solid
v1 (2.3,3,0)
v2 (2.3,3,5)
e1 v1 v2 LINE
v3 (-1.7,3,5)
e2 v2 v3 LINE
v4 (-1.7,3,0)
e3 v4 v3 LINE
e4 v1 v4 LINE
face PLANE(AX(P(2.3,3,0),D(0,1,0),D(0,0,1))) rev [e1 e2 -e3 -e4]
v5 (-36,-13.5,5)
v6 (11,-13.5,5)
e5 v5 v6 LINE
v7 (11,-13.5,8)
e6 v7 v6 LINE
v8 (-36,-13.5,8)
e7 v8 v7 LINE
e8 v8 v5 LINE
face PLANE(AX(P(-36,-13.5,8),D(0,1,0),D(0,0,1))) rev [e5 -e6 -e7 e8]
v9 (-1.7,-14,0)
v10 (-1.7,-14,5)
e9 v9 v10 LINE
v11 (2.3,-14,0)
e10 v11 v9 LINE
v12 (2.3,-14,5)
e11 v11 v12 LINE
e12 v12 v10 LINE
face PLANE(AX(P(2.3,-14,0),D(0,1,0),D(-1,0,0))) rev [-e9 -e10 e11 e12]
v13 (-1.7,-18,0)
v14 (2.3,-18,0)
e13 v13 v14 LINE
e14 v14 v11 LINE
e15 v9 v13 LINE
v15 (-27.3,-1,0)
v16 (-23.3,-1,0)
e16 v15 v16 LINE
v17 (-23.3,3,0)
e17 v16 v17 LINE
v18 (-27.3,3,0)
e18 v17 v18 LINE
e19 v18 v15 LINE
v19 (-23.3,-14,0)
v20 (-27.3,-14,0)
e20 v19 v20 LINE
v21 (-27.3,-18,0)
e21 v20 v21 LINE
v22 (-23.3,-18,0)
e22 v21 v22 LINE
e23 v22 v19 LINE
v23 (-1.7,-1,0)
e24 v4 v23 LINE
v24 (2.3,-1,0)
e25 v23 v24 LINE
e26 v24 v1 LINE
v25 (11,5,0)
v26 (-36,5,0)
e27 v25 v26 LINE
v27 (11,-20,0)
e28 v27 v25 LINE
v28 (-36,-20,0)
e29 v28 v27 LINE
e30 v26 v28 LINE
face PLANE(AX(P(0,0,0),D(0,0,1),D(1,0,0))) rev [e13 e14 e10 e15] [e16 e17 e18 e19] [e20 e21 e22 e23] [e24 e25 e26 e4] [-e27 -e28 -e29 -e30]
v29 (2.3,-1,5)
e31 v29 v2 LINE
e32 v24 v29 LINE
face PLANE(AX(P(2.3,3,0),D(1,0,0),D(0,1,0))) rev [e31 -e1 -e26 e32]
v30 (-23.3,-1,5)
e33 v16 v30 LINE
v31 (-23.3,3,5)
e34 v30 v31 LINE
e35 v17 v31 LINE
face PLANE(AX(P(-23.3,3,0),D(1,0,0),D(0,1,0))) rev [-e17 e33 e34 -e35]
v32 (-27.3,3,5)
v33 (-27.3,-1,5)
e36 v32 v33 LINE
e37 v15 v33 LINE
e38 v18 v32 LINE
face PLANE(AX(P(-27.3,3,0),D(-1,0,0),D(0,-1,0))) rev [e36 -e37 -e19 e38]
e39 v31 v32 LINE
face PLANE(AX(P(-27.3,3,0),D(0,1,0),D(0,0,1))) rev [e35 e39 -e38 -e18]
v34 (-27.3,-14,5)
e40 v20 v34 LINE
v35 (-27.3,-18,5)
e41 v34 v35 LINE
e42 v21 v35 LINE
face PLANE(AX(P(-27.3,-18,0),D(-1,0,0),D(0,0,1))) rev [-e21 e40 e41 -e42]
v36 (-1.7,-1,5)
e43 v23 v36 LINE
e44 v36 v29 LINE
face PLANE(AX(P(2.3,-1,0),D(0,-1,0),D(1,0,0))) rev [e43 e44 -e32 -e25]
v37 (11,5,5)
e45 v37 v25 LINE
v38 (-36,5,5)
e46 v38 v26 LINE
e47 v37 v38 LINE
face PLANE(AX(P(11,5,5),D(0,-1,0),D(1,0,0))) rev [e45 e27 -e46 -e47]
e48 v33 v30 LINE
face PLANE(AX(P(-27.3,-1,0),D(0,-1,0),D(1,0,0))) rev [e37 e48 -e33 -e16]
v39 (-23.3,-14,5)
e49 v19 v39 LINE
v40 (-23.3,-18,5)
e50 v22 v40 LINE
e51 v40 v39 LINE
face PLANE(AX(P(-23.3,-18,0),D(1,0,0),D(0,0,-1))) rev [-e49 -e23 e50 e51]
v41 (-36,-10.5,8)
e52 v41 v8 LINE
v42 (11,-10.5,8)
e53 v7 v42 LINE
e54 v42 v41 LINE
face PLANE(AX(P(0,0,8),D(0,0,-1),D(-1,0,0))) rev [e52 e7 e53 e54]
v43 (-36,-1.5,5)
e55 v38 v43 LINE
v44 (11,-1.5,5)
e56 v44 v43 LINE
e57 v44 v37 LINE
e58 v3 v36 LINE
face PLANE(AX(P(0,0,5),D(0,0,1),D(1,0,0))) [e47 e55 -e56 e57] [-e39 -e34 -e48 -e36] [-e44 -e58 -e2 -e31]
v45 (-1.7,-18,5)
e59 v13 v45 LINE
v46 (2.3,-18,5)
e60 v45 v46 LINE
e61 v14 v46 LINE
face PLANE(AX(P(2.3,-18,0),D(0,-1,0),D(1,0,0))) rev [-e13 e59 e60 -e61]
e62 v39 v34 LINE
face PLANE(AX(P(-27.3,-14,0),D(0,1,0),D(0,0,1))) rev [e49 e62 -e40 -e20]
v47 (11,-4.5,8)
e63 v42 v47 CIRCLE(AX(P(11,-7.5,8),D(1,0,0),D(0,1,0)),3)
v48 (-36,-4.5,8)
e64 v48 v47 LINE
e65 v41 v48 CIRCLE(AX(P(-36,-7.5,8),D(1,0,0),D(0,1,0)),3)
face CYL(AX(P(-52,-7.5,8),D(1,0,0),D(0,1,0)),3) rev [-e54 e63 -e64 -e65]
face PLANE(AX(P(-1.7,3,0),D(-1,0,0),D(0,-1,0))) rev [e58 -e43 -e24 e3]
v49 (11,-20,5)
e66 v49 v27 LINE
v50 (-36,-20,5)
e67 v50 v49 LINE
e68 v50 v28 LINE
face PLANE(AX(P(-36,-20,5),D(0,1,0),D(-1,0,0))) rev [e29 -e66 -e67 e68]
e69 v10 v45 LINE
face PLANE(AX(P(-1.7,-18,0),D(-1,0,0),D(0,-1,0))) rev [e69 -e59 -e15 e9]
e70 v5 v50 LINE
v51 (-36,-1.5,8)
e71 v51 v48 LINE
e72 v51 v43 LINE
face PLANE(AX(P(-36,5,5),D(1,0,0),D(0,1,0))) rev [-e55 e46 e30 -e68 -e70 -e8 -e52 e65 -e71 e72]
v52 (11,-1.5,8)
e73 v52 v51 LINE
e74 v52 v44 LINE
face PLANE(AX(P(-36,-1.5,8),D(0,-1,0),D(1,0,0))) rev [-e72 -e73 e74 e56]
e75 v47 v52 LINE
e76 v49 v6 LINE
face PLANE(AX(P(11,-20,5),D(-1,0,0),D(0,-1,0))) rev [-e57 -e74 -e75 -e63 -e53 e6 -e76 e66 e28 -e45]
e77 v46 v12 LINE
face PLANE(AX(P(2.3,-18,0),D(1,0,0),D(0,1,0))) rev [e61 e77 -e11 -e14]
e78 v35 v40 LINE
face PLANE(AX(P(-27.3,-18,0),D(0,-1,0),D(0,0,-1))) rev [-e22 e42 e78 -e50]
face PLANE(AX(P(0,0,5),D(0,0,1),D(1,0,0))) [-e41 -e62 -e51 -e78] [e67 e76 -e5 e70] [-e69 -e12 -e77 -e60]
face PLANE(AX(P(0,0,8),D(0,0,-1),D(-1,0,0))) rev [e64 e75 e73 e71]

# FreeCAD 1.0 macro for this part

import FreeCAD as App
import Part
import Sketcher
from FreeCAD import Vector


def add_polygon(sketch, points):
    """Adds a closed chain of lines whose ends are joined by coincident constraints."""
    first, n = sketch.GeometryCount, len(points)
    for a, b in zip(points, points[1:] + points[:1]):
        sketch.addGeometry(Part.LineSegment(App.Vector(*a, 0), App.Vector(*b, 0)), False)
    for i in range(n):
        sketch.addConstraint(Sketcher.Constraint("Coincident", first + i, 2, first + (i + 1) % n, 1))

doc = App.newDocument("Part")
params = doc.addObject("Spreadsheet::Sheet", "Params")
for row, (alias, value) in enumerate([
    ("sketch1_width", "47 mm"),
    ("sketch1_height", "25 mm"),
    ("pad1_length", "5 mm"),
    ("sketch2_width", "4 mm"),
    ("pocket1_length", "5 mm"),
    ("sketch3_width", "47 mm"),
    ("sketch3_height", "12 mm"),
    ("pad2_length", "3 mm"),
    ("sketch4_diameter", "6 mm"),
    ("pocket2_length", "63 mm"),
], start=1):
    params.set(f"A{row}", alias)
    params.set(f"B{row}", "=" + value)
    params.setAlias(f"B{row}", alias)

body = doc.addObject("PartDesign::Body", "Body")

sketch1 = body.newObject("Sketcher::SketchObject", "Sketch")
sketch1.AttachmentSupport = (doc.getObject("XY_Plane"), [""])
sketch1.MapMode = "FlatFace"
add_polygon(sketch1, [(-36, 5), (-36, -20), (11, -20), (11, 5)])
sketch1.addConstraint(Sketcher.Constraint("Vertical", 0))
sketch1.addConstraint(Sketcher.Constraint("Horizontal", 1))
sketch1.addConstraint(Sketcher.Constraint("Vertical", 2))
sketch1.addConstraint(Sketcher.Constraint("Horizontal", 3))
sketch1.addConstraint(Sketcher.Constraint("DistanceX", 1, 1, 1, 2, 47.0))
sketch1.addConstraint(Sketcher.Constraint("DistanceY", 0, 2, 0, 1, 25.0))
sketch1.addConstraint(Sketcher.Constraint("DistanceX", 0, 2, -1, 1, 36.0))
sketch1.addConstraint(Sketcher.Constraint("DistanceY", 0, 2, -1, 1, 20.0))
sketch1.setExpression("Constraints[8]", "Params.sketch1_width")
sketch1.setExpression("Constraints[9]", "Params.sketch1_height")
pad1 = body.newObject("PartDesign::Pad", "Pad")
pad1.Profile = sketch1
pad1.setExpression("Length", "Params.pad1_length")

sketch2 = body.newObject("Sketcher::SketchObject", "Sketch001")
sketch2.AttachmentSupport = (doc.getObject("XY_Plane"), [""])
sketch2.MapMode = "FlatFace"
sketch2.AttachmentOffset = App.Placement(Vector(0, 0, 5), App.Rotation())
add_polygon(sketch2, [(-27.3, -14), (-27.3, -18), (-23.3, -18), (-23.3, -14)])
add_polygon(sketch2, [(-27.3, 3), (-27.3, -1), (-23.3, -1), (-23.3, 3)])
add_polygon(sketch2, [(-1.7, 3), (-1.7, -1), (2.3, -1), (2.3, 3)])
add_polygon(sketch2, [(-1.7, -14), (-1.7, -18), (2.3, -18), (2.3, -14)])
sketch2.addConstraint(Sketcher.Constraint("Vertical", 0))
sketch2.addConstraint(Sketcher.Constraint("Horizontal", 1))
sketch2.addConstraint(Sketcher.Constraint("Vertical", 2))
sketch2.addConstraint(Sketcher.Constraint("Horizontal", 3))
sketch2.addConstraint(Sketcher.Constraint("Vertical", 4))
sketch2.addConstraint(Sketcher.Constraint("Horizontal", 5))
sketch2.addConstraint(Sketcher.Constraint("Vertical", 6))
sketch2.addConstraint(Sketcher.Constraint("Horizontal", 7))
sketch2.addConstraint(Sketcher.Constraint("Vertical", 8))
sketch2.addConstraint(Sketcher.Constraint("Horizontal", 9))
sketch2.addConstraint(Sketcher.Constraint("Vertical", 10))
sketch2.addConstraint(Sketcher.Constraint("Horizontal", 11))
sketch2.addConstraint(Sketcher.Constraint("Vertical", 12))
sketch2.addConstraint(Sketcher.Constraint("Horizontal", 13))
sketch2.addConstraint(Sketcher.Constraint("Vertical", 14))
sketch2.addConstraint(Sketcher.Constraint("Horizontal", 15))
sketch2.addConstraint(Sketcher.Constraint("Horizontal", 5, 2, 8, 2))
sketch2.addConstraint(Sketcher.Constraint("Horizontal", 7, 2, 10, 2))
sketch2.addConstraint(Sketcher.Constraint("Horizontal", 1, 2, 12, 2))
sketch2.addConstraint(Sketcher.Constraint("Horizontal", 3, 2, 14, 2))
sketch2.addConstraint(Sketcher.Constraint("Vertical", 3, 2, 4, 2))
sketch2.addConstraint(Sketcher.Constraint("Vertical", 2, 2, 5, 2))
sketch2.addConstraint(Sketcher.Constraint("Vertical", 11, 2, 12, 2))
sketch2.addConstraint(Sketcher.Constraint("Vertical", 10, 2, 13, 2))
sketch2.addConstraint(Sketcher.Constraint("Equal", 7, 9))
sketch2.addConstraint(Sketcher.Constraint("Equal", 15, 0))
sketch2.addConstraint(Sketcher.Constraint("Equal", 2, 4))
sketch2.addConstraint(Sketcher.Constraint("DistanceX", 1, 1, 1, 2, 4.0))
sketch2.addConstraint(Sketcher.Constraint("DistanceY", 0, 2, -1, 1, 18.0))
sketch2.addConstraint(Sketcher.Constraint("DistanceY", 4, 2, -1, 1, 1.0))
sketch2.addConstraint(Sketcher.Constraint("DistanceX", 0, 2, -1, 1, 27.3))
sketch2.addConstraint(Sketcher.Constraint("DistanceX", 8, 2, -1, 1, 1.7))
sketch2.setExpression("Constraints[43]", "Params.sketch2_width")
pocket1 = body.newObject("PartDesign::Pocket", "Pocket")
pocket1.Profile = sketch2
pocket1.setExpression("Length", "Params.pocket1_length")

sketch3 = body.newObject("Sketcher::SketchObject", "Sketch002")
sketch3.AttachmentSupport = (doc.getObject("XY_Plane"), [""])
sketch3.MapMode = "FlatFace"
sketch3.AttachmentOffset = App.Placement(Vector(0, 0, 5), App.Rotation())
add_polygon(sketch3, [(-36, -2), (-36, -14), (11, -14), (11, -2)])
sketch3.addConstraint(Sketcher.Constraint("Vertical", 0))
sketch3.addConstraint(Sketcher.Constraint("Horizontal", 1))
sketch3.addConstraint(Sketcher.Constraint("Vertical", 2))
sketch3.addConstraint(Sketcher.Constraint("Horizontal", 3))
sketch3.addConstraint(Sketcher.Constraint("DistanceX", 1, 1, 1, 2, 47.0))
sketch3.addConstraint(Sketcher.Constraint("DistanceY", 0, 2, 0, 1, 12.0))
sketch3.addConstraint(Sketcher.Constraint("DistanceX", 0, 2, -1, 1, 36.0))
sketch3.addConstraint(Sketcher.Constraint("DistanceY", 0, 2, -1, 1, 13.5))
sketch3.setExpression("Constraints[8]", "Params.sketch3_width")
sketch3.setExpression("Constraints[9]", "Params.sketch3_height")
pad2 = body.newObject("PartDesign::Pad", "Pad001")
pad2.Profile = sketch3
pad2.setExpression("Length", "Params.pad2_length")

sketch4 = body.newObject("Sketcher::SketchObject", "Sketch003")
sketch4.AttachmentSupport = (doc.getObject("YZ_Plane"), [""])
sketch4.MapMode = "FlatFace"
sketch4.AttachmentOffset = App.Placement(Vector(0, 0, 11), App.Rotation())
sketch4.addGeometry(Part.Circle(Vector(-7.5, 8, 0), Vector(0, 0, 1), 3), False)
sketch4.addConstraint(Sketcher.Constraint("Diameter", 0, 6.0))
sketch4.addConstraint(Sketcher.Constraint("DistanceY", -1, 1, 0, 3, 8.0))
sketch4.addConstraint(Sketcher.Constraint("DistanceX", 0, 3, -1, 1, 7.5))
sketch4.setExpression("Constraints[0]", "Params.sketch4_diameter")
pocket2 = body.newObject("PartDesign::Pocket", "Pocket001")
pocket2.Profile = sketch4
pocket2.setExpression("Length", "Params.pocket2_length")

doc.recompute()
